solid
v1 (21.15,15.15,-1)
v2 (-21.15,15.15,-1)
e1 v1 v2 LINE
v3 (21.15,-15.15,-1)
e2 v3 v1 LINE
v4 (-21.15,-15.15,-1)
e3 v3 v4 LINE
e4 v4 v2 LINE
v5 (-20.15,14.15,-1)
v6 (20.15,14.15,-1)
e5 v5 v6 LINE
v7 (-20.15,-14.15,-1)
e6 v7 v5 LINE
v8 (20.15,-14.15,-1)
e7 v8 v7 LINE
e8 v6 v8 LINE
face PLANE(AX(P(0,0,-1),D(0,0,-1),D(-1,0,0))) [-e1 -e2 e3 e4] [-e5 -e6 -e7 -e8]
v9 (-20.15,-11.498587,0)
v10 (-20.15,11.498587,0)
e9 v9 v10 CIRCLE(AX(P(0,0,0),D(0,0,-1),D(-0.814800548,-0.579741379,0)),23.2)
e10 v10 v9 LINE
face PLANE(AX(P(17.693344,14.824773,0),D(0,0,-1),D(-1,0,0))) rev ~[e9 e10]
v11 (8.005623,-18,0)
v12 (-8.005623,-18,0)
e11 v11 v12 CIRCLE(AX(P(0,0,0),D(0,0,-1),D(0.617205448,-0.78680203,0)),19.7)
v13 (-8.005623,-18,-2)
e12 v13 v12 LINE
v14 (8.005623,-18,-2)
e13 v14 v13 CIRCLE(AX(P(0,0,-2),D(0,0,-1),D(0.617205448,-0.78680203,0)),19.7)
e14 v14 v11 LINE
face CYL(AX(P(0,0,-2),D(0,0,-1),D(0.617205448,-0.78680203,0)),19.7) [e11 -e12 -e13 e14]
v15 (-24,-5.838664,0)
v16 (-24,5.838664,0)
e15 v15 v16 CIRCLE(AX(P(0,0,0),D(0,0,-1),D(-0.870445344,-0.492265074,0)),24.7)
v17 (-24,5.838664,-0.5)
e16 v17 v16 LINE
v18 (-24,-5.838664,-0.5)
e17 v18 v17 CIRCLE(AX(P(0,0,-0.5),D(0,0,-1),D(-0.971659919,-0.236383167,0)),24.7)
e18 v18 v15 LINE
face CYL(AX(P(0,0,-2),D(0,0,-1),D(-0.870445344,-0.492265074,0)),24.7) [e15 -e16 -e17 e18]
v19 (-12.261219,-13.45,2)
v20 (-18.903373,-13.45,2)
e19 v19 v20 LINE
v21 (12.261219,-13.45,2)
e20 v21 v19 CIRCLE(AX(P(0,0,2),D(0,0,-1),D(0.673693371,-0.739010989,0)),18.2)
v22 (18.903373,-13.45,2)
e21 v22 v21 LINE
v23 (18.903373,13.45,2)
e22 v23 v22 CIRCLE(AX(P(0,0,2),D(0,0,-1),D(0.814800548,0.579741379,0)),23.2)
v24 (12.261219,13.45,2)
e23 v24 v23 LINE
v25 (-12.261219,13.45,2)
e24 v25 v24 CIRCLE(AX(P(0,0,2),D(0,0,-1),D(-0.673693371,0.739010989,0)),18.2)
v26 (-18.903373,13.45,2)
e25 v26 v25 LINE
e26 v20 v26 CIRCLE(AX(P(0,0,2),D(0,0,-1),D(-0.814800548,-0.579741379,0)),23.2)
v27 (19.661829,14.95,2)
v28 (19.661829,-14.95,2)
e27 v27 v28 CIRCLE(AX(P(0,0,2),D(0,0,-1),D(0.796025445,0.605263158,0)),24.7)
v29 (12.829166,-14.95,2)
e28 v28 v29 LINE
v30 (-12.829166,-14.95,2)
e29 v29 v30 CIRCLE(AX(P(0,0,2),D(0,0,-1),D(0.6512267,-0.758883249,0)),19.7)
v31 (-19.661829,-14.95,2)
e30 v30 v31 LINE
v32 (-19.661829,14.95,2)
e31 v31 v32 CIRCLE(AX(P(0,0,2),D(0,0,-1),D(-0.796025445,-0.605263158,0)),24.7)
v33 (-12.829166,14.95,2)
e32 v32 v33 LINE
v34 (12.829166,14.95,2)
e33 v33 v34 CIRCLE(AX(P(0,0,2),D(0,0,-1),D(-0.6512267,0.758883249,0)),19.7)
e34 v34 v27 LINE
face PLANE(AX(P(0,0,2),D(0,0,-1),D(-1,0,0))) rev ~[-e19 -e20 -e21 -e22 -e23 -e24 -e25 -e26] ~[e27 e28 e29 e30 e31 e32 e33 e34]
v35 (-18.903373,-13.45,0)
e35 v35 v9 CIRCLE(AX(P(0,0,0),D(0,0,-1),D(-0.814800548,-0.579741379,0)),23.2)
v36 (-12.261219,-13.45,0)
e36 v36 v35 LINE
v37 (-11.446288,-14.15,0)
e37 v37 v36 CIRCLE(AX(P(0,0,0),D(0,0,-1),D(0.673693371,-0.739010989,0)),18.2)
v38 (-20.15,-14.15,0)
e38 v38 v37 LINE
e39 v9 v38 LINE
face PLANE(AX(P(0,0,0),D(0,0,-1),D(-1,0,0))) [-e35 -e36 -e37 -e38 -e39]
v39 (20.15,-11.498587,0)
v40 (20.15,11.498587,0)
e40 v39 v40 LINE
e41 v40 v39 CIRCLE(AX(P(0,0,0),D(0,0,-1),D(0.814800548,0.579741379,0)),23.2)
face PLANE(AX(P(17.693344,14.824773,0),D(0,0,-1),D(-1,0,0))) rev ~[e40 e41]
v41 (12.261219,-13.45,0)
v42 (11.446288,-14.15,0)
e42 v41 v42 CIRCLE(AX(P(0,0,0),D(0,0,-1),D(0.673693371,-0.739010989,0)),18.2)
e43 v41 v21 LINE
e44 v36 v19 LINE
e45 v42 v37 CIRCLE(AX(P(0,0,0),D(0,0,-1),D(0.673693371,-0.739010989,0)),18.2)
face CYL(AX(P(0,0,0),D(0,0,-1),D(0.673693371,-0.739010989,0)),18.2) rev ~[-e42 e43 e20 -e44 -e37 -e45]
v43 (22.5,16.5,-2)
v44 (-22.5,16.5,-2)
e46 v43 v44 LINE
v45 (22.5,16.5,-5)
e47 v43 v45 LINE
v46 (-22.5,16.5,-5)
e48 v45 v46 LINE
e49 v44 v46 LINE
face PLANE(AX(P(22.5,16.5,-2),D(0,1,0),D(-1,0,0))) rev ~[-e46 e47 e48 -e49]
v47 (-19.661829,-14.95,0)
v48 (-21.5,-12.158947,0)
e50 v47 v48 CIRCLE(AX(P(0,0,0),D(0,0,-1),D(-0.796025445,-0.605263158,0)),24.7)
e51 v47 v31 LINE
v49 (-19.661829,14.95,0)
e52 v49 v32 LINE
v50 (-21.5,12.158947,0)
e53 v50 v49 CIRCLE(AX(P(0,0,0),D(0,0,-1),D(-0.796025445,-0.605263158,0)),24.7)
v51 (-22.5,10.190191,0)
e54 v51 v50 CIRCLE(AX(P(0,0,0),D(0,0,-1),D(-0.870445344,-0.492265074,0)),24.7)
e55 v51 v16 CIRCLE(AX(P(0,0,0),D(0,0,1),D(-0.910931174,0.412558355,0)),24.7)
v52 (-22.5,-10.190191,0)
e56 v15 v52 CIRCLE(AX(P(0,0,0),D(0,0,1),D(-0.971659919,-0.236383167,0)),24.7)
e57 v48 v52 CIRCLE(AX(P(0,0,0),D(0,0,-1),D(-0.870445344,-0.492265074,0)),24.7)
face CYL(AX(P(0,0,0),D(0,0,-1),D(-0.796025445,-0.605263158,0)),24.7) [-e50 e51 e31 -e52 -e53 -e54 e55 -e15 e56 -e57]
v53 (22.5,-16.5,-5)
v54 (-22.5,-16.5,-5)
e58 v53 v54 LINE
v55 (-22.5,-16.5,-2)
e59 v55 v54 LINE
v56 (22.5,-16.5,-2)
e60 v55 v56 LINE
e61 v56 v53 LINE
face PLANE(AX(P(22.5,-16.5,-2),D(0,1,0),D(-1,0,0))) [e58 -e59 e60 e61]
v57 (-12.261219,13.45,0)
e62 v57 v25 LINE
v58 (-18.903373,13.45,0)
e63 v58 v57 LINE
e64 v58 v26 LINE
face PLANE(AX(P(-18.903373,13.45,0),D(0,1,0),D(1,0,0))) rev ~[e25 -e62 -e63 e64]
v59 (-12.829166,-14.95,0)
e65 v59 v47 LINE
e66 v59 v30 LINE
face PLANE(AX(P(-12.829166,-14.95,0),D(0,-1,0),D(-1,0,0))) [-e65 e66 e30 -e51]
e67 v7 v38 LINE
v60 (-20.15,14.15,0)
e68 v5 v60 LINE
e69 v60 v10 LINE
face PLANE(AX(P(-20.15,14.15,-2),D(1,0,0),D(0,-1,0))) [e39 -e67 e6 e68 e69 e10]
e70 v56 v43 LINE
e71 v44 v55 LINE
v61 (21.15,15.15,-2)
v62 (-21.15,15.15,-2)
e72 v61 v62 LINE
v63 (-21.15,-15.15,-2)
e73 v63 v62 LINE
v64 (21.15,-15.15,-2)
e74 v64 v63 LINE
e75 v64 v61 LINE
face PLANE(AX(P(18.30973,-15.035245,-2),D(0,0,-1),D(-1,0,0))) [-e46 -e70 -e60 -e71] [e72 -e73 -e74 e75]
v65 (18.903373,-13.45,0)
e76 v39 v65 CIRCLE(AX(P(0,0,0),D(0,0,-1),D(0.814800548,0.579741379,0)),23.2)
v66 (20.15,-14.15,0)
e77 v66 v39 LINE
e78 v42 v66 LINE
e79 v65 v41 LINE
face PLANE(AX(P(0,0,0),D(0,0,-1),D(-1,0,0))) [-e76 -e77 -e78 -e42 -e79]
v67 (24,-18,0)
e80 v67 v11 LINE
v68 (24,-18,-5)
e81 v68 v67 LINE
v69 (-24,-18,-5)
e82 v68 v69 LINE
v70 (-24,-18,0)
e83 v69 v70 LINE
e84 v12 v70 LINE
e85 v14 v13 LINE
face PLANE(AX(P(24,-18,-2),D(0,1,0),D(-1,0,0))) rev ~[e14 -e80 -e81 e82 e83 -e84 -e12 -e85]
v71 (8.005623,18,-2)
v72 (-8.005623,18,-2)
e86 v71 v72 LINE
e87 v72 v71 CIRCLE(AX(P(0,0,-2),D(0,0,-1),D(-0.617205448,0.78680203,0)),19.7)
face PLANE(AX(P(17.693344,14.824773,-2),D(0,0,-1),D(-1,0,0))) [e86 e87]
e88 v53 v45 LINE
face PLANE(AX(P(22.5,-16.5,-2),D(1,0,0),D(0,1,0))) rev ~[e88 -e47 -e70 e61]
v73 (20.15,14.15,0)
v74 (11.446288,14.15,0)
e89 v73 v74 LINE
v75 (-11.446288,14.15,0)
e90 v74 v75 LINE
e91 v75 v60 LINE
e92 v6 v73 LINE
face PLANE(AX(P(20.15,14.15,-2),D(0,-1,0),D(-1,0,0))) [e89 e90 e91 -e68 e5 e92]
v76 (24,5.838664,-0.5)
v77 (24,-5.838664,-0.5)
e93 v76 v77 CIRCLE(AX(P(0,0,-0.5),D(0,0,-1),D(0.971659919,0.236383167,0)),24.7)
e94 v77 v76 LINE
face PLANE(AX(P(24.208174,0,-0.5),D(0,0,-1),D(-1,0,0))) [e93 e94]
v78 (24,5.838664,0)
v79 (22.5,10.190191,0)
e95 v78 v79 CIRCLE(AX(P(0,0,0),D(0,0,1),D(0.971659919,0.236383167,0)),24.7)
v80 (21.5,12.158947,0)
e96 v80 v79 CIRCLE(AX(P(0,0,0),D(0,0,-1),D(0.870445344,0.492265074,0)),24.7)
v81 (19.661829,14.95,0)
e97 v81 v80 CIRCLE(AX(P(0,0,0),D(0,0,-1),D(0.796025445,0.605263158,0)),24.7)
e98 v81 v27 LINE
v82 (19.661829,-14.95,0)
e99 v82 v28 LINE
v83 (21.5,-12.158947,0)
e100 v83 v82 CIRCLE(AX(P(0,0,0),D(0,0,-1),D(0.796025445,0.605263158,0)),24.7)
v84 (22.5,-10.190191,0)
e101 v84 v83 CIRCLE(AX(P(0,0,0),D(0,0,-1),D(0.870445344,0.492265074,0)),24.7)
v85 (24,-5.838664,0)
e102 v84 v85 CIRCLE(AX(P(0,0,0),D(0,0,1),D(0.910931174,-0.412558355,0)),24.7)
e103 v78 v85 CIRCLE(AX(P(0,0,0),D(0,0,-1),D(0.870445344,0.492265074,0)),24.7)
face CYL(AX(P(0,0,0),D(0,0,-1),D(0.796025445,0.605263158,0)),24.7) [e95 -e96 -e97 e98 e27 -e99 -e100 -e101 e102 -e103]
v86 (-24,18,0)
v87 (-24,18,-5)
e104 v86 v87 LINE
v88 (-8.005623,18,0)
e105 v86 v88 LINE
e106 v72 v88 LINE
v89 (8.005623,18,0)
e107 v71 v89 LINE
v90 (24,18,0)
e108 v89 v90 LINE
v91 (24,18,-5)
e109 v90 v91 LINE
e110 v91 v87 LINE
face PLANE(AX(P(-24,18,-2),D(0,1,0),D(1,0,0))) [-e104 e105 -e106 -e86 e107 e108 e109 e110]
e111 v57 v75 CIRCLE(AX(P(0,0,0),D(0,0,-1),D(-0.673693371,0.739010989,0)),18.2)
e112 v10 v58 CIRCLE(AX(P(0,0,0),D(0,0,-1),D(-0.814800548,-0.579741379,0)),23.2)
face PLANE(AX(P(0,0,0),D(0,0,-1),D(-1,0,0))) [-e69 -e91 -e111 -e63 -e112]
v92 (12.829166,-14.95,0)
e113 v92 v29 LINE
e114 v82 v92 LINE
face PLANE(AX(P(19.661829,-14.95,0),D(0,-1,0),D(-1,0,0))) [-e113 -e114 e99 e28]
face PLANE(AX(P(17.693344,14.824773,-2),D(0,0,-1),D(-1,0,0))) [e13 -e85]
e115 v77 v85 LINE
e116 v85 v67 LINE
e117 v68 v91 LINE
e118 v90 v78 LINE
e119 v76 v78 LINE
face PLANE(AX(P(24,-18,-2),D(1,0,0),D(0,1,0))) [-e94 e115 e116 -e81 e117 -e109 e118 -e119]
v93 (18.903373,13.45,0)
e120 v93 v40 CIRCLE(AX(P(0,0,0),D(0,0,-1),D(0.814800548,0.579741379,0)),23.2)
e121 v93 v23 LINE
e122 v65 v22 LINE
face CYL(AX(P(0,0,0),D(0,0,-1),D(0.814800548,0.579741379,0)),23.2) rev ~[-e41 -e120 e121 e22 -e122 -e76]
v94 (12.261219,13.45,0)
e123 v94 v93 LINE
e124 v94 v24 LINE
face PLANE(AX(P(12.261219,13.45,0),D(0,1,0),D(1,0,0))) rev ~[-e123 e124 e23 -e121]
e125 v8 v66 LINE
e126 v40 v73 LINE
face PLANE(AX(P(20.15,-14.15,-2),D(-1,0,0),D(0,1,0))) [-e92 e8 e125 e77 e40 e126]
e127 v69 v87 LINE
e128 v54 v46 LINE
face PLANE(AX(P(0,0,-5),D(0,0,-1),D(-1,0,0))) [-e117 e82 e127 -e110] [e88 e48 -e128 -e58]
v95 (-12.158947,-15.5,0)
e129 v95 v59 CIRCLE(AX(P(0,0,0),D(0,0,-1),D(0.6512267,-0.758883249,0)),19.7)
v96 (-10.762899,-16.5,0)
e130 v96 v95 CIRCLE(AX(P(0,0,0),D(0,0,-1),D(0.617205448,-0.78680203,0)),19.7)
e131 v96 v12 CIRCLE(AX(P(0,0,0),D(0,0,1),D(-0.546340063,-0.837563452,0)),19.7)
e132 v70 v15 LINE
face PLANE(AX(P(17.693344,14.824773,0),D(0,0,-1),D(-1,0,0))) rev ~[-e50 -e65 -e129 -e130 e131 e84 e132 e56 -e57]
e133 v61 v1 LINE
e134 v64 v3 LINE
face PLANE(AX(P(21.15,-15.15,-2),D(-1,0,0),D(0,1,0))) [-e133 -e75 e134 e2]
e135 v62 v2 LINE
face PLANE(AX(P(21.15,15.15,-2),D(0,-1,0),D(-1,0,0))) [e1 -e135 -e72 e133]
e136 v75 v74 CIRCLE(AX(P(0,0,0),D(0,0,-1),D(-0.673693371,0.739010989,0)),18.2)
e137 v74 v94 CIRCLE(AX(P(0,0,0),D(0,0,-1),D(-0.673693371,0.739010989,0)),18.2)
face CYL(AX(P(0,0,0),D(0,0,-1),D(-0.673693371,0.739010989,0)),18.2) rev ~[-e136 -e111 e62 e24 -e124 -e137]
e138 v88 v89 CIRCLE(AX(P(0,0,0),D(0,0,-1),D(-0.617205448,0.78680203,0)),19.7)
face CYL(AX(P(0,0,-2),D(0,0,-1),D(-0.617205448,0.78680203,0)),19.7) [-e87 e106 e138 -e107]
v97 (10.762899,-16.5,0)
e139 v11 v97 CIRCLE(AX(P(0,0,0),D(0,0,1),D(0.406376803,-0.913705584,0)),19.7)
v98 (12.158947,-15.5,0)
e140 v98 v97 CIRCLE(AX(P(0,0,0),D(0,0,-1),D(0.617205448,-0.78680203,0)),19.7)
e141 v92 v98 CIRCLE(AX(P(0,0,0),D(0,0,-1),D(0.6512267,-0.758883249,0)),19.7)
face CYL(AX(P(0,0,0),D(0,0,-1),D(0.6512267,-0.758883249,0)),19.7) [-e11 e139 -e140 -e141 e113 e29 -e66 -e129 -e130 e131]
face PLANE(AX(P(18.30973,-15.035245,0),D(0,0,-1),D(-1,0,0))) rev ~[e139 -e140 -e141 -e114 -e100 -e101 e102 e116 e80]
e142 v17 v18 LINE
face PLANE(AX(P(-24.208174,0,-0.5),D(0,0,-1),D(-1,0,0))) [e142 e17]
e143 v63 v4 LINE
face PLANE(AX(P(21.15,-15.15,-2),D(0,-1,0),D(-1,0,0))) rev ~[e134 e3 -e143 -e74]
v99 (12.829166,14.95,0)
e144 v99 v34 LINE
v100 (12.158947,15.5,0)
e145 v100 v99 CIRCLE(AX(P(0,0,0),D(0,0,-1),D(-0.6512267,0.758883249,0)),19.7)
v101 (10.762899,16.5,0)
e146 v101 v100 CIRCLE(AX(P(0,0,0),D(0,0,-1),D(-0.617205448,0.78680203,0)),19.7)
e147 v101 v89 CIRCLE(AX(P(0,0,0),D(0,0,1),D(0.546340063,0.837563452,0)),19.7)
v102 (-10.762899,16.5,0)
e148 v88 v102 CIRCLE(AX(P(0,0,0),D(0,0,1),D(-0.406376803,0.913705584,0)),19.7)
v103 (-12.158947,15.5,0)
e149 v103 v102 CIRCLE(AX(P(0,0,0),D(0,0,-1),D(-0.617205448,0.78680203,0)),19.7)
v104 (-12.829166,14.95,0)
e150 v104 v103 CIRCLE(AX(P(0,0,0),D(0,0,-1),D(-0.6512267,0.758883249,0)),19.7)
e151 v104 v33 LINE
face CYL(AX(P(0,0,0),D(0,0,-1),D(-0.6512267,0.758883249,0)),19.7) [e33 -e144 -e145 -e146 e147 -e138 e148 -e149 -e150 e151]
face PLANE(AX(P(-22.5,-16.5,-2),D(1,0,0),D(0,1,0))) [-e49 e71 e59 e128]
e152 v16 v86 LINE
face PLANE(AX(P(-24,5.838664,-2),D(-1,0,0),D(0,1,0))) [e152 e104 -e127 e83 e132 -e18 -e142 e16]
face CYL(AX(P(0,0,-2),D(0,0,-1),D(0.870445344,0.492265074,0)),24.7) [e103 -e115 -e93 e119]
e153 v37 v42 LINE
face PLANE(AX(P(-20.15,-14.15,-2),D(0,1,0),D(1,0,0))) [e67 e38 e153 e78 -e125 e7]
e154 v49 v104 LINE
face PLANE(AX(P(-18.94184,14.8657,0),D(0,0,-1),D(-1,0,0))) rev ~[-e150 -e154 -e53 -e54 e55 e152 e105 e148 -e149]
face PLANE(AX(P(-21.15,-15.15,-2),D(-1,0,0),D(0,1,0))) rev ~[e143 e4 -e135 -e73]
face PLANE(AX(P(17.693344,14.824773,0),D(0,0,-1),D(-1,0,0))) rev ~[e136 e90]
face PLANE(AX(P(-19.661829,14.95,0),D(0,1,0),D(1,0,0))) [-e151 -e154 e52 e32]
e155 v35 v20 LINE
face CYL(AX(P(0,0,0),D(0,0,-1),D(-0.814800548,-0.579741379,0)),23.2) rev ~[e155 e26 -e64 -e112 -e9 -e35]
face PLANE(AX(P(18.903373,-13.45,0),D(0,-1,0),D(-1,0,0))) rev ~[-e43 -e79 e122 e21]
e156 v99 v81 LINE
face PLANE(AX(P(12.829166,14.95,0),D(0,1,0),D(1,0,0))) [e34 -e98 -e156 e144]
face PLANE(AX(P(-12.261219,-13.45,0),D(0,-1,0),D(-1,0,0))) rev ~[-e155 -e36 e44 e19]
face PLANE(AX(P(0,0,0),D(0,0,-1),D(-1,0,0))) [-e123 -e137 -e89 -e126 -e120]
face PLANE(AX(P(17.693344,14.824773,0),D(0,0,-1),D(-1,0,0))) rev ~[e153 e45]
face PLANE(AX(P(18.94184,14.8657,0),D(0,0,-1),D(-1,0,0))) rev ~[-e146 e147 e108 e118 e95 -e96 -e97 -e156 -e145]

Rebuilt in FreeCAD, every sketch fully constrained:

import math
import FreeCAD as App
import Part
import Sketcher
from FreeCAD import Vector
Q = App.Units.Quantity

doc = App.newDocument("Part")
body = doc.addObject("PartDesign::Body", "Body")

sketch1 = body.newObject("Sketcher::SketchObject", "Sketch")
sketch1.AttachmentSupport = (doc.getObject("XY_Plane"), [""])
sketch1.MapMode = "FlatFace"
sketch1.addGeometry([
    Part.LineSegment(Vector(-13, 15, 0), Vector(-20, 15, 0)),
    Part.ArcOfCircle(Part.Circle(Vector(0, 0, 0), Vector(0, 0, 1), 25), math.radians(143), math.radians(217)),
    Part.LineSegment(Vector(-20, -15, 0), Vector(-13, -15, 0)),
    Part.ArcOfCircle(Part.Circle(Vector(0, 0, 0), Vector(0, 0, 1), 20), math.radians(-131), math.radians(-49)),
    Part.LineSegment(Vector(13, -15, 0), Vector(20, -15, 0)),
    Part.ArcOfCircle(Part.Circle(Vector(0, 0, 0), Vector(0, 0, 1), 25), math.radians(-37), math.radians(37)),
    Part.LineSegment(Vector(20, 15, 0), Vector(13, 15, 0)),
    Part.ArcOfCircle(Part.Circle(Vector(0, 0, 0), Vector(0, 0, 1), 20), math.radians(49), math.radians(131)),
    Part.LineSegment(Vector(-19, 13, 0), Vector(-12, 13, 0)),
    Part.ArcOfCircle(Part.Circle(Vector(0, 0, 0), Vector(0, 0, 1), 18), math.radians(48), math.radians(132)),
    Part.LineSegment(Vector(12, 13, 0), Vector(19, 13, 0)),
    Part.ArcOfCircle(Part.Circle(Vector(0, 0, 0), Vector(0, 0, 1), 23), math.radians(-35), math.radians(35)),
    Part.LineSegment(Vector(19, -13, 0), Vector(12, -13, 0)),
    Part.ArcOfCircle(Part.Circle(Vector(0, 0, 0), Vector(0, 0, 1), 18), math.radians(-132), math.radians(-48)),
    Part.LineSegment(Vector(-12, -13, 0), Vector(-19, -13, 0)),
    Part.ArcOfCircle(Part.Circle(Vector(0, 0, 0), Vector(0, 0, 1), 23), math.radians(145), math.radians(215)),
], False)
sketch1.addConstraint([
    Sketcher.Constraint("Coincident", 0, 2, 1, 1),
    Sketcher.Constraint("Coincident", 1, 2, 2, 1),
    Sketcher.Constraint("Coincident", 2, 2, 3, 1),
    Sketcher.Constraint("Coincident", 3, 2, 4, 1),
    Sketcher.Constraint("Coincident", 4, 2, 5, 1),
    Sketcher.Constraint("Coincident", 5, 2, 6, 1),
    Sketcher.Constraint("Coincident", 6, 2, 7, 1),
    Sketcher.Constraint("Coincident", 7, 2, 0, 1),
    Sketcher.Constraint("Coincident", 8, 2, 9, 2),
    Sketcher.Constraint("Coincident", 9, 1, 10, 1),
    Sketcher.Constraint("Coincident", 10, 2, 11, 2),
    Sketcher.Constraint("Coincident", 11, 1, 12, 1),
    Sketcher.Constraint("Coincident", 12, 2, 13, 2),
    Sketcher.Constraint("Coincident", 13, 1, 14, 1),
    Sketcher.Constraint("Coincident", 14, 2, 15, 2),
    Sketcher.Constraint("Coincident", 15, 1, 8, 1),
    Sketcher.Constraint("Horizontal", 0),
    Sketcher.Constraint("Horizontal", 2),
    Sketcher.Constraint("Horizontal", 4),
    Sketcher.Constraint("Horizontal", 6),
    Sketcher.Constraint("Horizontal", 8),
    Sketcher.Constraint("Horizontal", 10),
    Sketcher.Constraint("Horizontal", 12),
    Sketcher.Constraint("Horizontal", 14),
    Sketcher.Constraint("Coincident", 1, 3, -1, 1),
    Sketcher.Constraint("Coincident", 3, 3, -1, 1),
    Sketcher.Constraint("Coincident", 5, 3, -1, 1),
    Sketcher.Constraint("Coincident", 7, 3, -1, 1),
    Sketcher.Constraint("Coincident", 9, 3, -1, 1),
    Sketcher.Constraint("Coincident", 11, 3, -1, 1),
    Sketcher.Constraint("Coincident", 13, 3, -1, 1),
    Sketcher.Constraint("Coincident", 15, 3, -1, 1),
    Sketcher.Constraint("Equal", 1, 5),
    Sketcher.Constraint("Equal", 3, 7),
    Sketcher.Constraint("Equal", 9, 13),
    Sketcher.Constraint("Equal", 11, 15),
    Sketcher.Constraint("Horizontal", 2, 2, 3, 2),
    Sketcher.Constraint("Horizontal", 0, 2, 5, 2),
    Sketcher.Constraint("Horizontal", 8, 2, 9, 1),
    Sketcher.Constraint("Horizontal", 12, 2, 13, 1),
    Sketcher.Constraint("Vertical", 0, 2, 1, 2),
    Sketcher.Constraint("Vertical", 10, 2, 11, 1),
    Sketcher.Constraint("Radius", 1, Q("24.7 mm")),
    Sketcher.Constraint("Radius", 3, Q("19.7 mm")),
    Sketcher.Constraint("Radius", 9, Q("18.2 mm")),
    Sketcher.Constraint("Radius", 11, Q("23.2 mm")),
    Sketcher.Constraint("DistanceY", 8, 2, 7, 2, Q("1.5 mm")),
    Sketcher.Constraint("DistanceY", -1, 1, 0, 2, Q("14.95 mm")),
])
pad1 = body.newObject("PartDesign::Pad", "Pad")
pad1.Profile = sketch1
pad1.Length = 2

sketch2 = body.newObject("Sketcher::SketchObject", "Sketch001")
sketch2.AttachmentSupport = (doc.getObject("XY_Plane"), [""])
sketch2.MapMode = "FlatFace"
sketch2.AttachmentOffset = App.Placement(Vector(0, 0, -2), App.Rotation())
sketch2.addGeometry([
    Part.ArcOfCircle(Part.Circle(Vector(0, 0, 0), Vector(0, 0, 1), 19.7), math.radians(-128), math.radians(-52)),
    Part.LineSegment(Vector(-12.2, -15.5, 0), Vector(-21.5, -15.5, 0)),
    Part.LineSegment(Vector(-21.5, -15.5, 0), Vector(-21.5, -12.2, 0)),
    Part.ArcOfCircle(Part.Circle(Vector(0, 0, 0), Vector(0, 0, 1), 24.7), math.radians(151), math.radians(209)),
    Part.LineSegment(Vector(-21.5, 12.2, 0), Vector(-21.5, 15.5, 0)),
    Part.LineSegment(Vector(-21.5, 15.5, 0), Vector(-12.2, 15.5, 0)),
    Part.ArcOfCircle(Part.Circle(Vector(0, 0, 0), Vector(0, 0, 1), 19.7), math.radians(52), math.radians(128)),
    Part.LineSegment(Vector(12.2, 15.5, 0), Vector(21.5, 15.5, 0)),
    Part.LineSegment(Vector(21.5, 15.5, 0), Vector(21.5, 12.2, 0)),
    Part.ArcOfCircle(Part.Circle(Vector(0, 0, 0), Vector(0, 0, 1), 24.7), math.radians(-29), math.radians(29)),
    Part.LineSegment(Vector(21.5, -12.2, 0), Vector(21.5, -15.5, 0)),
    Part.LineSegment(Vector(21.5, -15.5, 0), Vector(12.2, -15.5, 0)),
    Part.LineSegment(Vector(20.1, 14.2, 0), Vector(-20.1, 14.2, 0)),
    Part.LineSegment(Vector(-20.1, 14.2, 0), Vector(-20.1, -14.2, 0)),
    Part.LineSegment(Vector(-20.1, -14.2, 0), Vector(20.1, -14.2, 0)),
    Part.LineSegment(Vector(20.1, -14.2, 0), Vector(20.1, 14.2, 0)),
], False)
sketch2.addConstraint([
    Sketcher.Constraint("Coincident", 0, 1, 1, 1),
    Sketcher.Constraint("Coincident", 1, 2, 2, 1),
    Sketcher.Constraint("Coincident", 2, 2, 3, 2),
    Sketcher.Constraint("Coincident", 3, 1, 4, 1),
    Sketcher.Constraint("Coincident", 4, 2, 5, 1),
    Sketcher.Constraint("Coincident", 5, 2, 6, 2),
    Sketcher.Constraint("Coincident", 6, 1, 7, 1),
    Sketcher.Constraint("Coincident", 7, 2, 8, 1),
    Sketcher.Constraint("Coincident", 8, 2, 9, 2),
    Sketcher.Constraint("Coincident", 9, 1, 10, 1),
    Sketcher.Constraint("Coincident", 10, 2, 11, 1),
    Sketcher.Constraint("Coincident", 11, 2, 0, 2),
    Sketcher.Constraint("Coincident", 12, 2, 13, 1),
    Sketcher.Constraint("Coincident", 13, 2, 14, 1),
    Sketcher.Constraint("Coincident", 14, 2, 15, 1),
    Sketcher.Constraint("Coincident", 15, 2, 12, 1),
    Sketcher.Constraint("Horizontal", 1),
    Sketcher.Constraint("Vertical", 2),
    Sketcher.Constraint("Vertical", 4),
    Sketcher.Constraint("Horizontal", 5),
    Sketcher.Constraint("Horizontal", 7),
    Sketcher.Constraint("Vertical", 8),
    Sketcher.Constraint("Vertical", 10),
    Sketcher.Constraint("Horizontal", 11),
    Sketcher.Constraint("Horizontal", 12),
    Sketcher.Constraint("Vertical", 13),
    Sketcher.Constraint("Horizontal", 14),
    Sketcher.Constraint("Vertical", 15),
    Sketcher.Constraint("Coincident", 0, 3, -1, 1),
    Sketcher.Constraint("Coincident", 3, 3, -1, 1),
    Sketcher.Constraint("Coincident", 6, 3, -1, 1),
    Sketcher.Constraint("Coincident", 9, 3, -1, 1),
    Sketcher.Constraint("Equal", 0, 6),
    Sketcher.Constraint("Equal", 3, 9),
    Sketcher.Constraint("Symmetric", 1, 2, 7, 2, -1, 1),
    Sketcher.Constraint("Symmetric", 4, 2, 10, 2, -1, 1),
    Sketcher.Constraint("Symmetric", 12, 2, 14, 2, -1, 1),
    Sketcher.Constraint("Symmetric", 4, 2, 7, 2, -2),
    Sketcher.Constraint("Radius", 0, Q("19.7 mm")),
    Sketcher.Constraint("Radius", 3, Q("24.7 mm")),
    Sketcher.Constraint("DistanceX", 12, 2, 12, 1, Q("40.3 mm")),
    Sketcher.Constraint("DistanceY", 13, 2, 13, 1, Q("28.3 mm")),
    Sketcher.Constraint("DistanceY", 0, 1, -1, 1, Q("15.5 mm")),
    Sketcher.Constraint("DistanceX", 1, 2, -1, 1, Q("21.5 mm")),
])
pad2 = body.newObject("PartDesign::Pad", "Pad001")
pad2.Profile = sketch2
pad2.Length = 2

sketch3 = body.newObject("Sketcher::SketchObject", "Sketch002")
sketch3.AttachmentSupport = (doc.getObject("XY_Plane"), [""])
sketch3.MapMode = "FlatFace"
sketch3.AttachmentOffset = App.Placement(Vector(0, 0, -2), App.Rotation())
sketch3.addGeometry([
    Part.LineSegment(Vector(24, 18, 0), Vector(24, -18, 0)),
    Part.LineSegment(Vector(24, -18, 0), Vector(-24, -18, 0)),
    Part.LineSegment(Vector(-24, -18, 0), Vector(-24, 18, 0)),
    Part.LineSegment(Vector(-24, 18, 0), Vector(24, 18, 0)),
    Part.LineSegment(Vector(-22, -16, 0), Vector(22, -16, 0)),
    Part.LineSegment(Vector(22, -16, 0), Vector(22, 16, 0)),
    Part.LineSegment(Vector(22, 16, 0), Vector(-22, 16, 0)),
    Part.LineSegment(Vector(-22, 16, 0), Vector(-22, -16, 0)),
], False)
sketch3.addConstraint([
    Sketcher.Constraint("Coincident", 0, 2, 1, 1),
    Sketcher.Constraint("Coincident", 1, 2, 2, 1),
    Sketcher.Constraint("Coincident", 2, 2, 3, 1),
    Sketcher.Constraint("Coincident", 3, 2, 0, 1),
    Sketcher.Constraint("Coincident", 4, 2, 5, 1),
    Sketcher.Constraint("Coincident", 5, 2, 6, 1),
    Sketcher.Constraint("Coincident", 6, 2, 7, 1),
    Sketcher.Constraint("Coincident", 7, 2, 4, 1),
    Sketcher.Constraint("Vertical", 0),
    Sketcher.Constraint("Horizontal", 1),
    Sketcher.Constraint("Vertical", 2),
    Sketcher.Constraint("Horizontal", 3),
    Sketcher.Constraint("Horizontal", 4),
    Sketcher.Constraint("Vertical", 5),
    Sketcher.Constraint("Horizontal", 6),
    Sketcher.Constraint("Vertical", 7),
    Sketcher.Constraint("Symmetric", 0, 2, 2, 2, -1, 1),
    Sketcher.Constraint("Symmetric", 4, 2, 6, 2, -1, 1),
    Sketcher.Constraint("DistanceX", 1, 2, 1, 1, Q("48 mm")),
    Sketcher.Constraint("DistanceX", 4, 1, 4, 2, Q("45 mm")),
    Sketcher.Constraint("DistanceY", 0, 2, 0, 1, Q("36 mm")),
    Sketcher.Constraint("DistanceY", 5, 1, 5, 2, Q("33 mm")),
])
pad3 = body.newObject("PartDesign::Pad", "Pad002")
pad3.Profile = sketch3
pad3.Length = 3
pad3.Reversed = True

sketch4 = body.newObject("Sketcher::SketchObject", "Sketch003")
sketch4.AttachmentSupport = (doc.getObject("XY_Plane"), [""])
sketch4.MapMode = "FlatFace"
sketch4.AttachmentOffset = App.Placement(Vector(0, 0, -2), App.Rotation())
sketch4.addGeometry([
    Part.ArcOfCircle(Part.Circle(Vector(0, 0, 0), Vector(0, 0, 1), 24.7), math.radians(155.63), math.radians(166.33)),
    Part.LineSegment(Vector(-24, 5.8, 0), Vector(-24, 18, 0)),
    Part.LineSegment(Vector(-24, 18, 0), Vector(-8, 18, 0)),
    Part.ArcOfCircle(Part.Circle(Vector(0, 0, 0), Vector(0, 0, 1), 19.7), math.radians(113.98), math.radians(123.12)),
    Part.ArcOfCircle(Part.Circle(Vector(0, 0, 0), Vector(0, 0, 1), 19.7), math.radians(123.12), math.radians(128.11)),
    Part.LineSegment(Vector(-12.2, 15.5, 0), Vector(-21.5, 15.5, 0)),
    Part.LineSegment(Vector(-21.5, 15.5, 0), Vector(-21.5, 12.2, 0)),
    Part.ArcOfCircle(Part.Circle(Vector(0, 0, 0), Vector(0, 0, 1), 24.7), math.radians(150.51), math.radians(155.63)),
    Part.ArcOfCircle(Part.Circle(Vector(0, 0, 0), Vector(0, 0, 1), 24.7), math.radians(13.67), math.radians(24.37)),
    Part.ArcOfCircle(Part.Circle(Vector(0, 0, 0), Vector(0, 0, 1), 24.7), math.radians(24.37), math.radians(29.49)),
    Part.LineSegment(Vector(21.5, 12.2, 0), Vector(21.5, 15.5, 0)),
    Part.LineSegment(Vector(21.5, 15.5, 0), Vector(12.2, 15.5, 0)),
    Part.ArcOfCircle(Part.Circle(Vector(0, 0, 0), Vector(0, 0, 1), 19.7), math.radians(51.89), math.radians(56.88)),
    Part.ArcOfCircle(Part.Circle(Vector(0, 0, 0), Vector(0, 0, 1), 19.7), math.radians(56.88), math.radians(66.02)),
    Part.LineSegment(Vector(8, 18, 0), Vector(24, 18, 0)),
    Part.LineSegment(Vector(24, 18, 0), Vector(24, 5.8, 0)),
    Part.ArcOfCircle(Part.Circle(Vector(0, 0, 0), Vector(0, 0, 1), 19.7), math.radians(-56.88), math.radians(-51.89)),
    Part.LineSegment(Vector(12.2, -15.5, 0), Vector(21.5, -15.5, 0)),
    Part.LineSegment(Vector(21.5, -15.5, 0), Vector(21.5, -12.2, 0)),
    Part.ArcOfCircle(Part.Circle(Vector(0, 0, 0), Vector(0, 0, 1), 24.7), math.radians(-29.49), math.radians(-24.37)),
    Part.ArcOfCircle(Part.Circle(Vector(0, 0, 0), Vector(0, 0, 1), 24.7), math.radians(-24.37), math.radians(-13.67)),
    Part.LineSegment(Vector(24, -5.8, 0), Vector(24, -18, 0)),
    Part.LineSegment(Vector(24, -18, 0), Vector(8, -18, 0)),
    Part.ArcOfCircle(Part.Circle(Vector(0, 0, 0), Vector(0, 0, 1), 19.7), math.radians(-66.02), math.radians(-56.88)),
    Part.ArcOfCircle(Part.Circle(Vector(0, 0, 0), Vector(0, 0, 1), 19.7), math.radians(-128.11), math.radians(-123.12)),
    Part.ArcOfCircle(Part.Circle(Vector(0, 0, 0), Vector(0, 0, 1), 19.7), math.radians(-123.12), math.radians(-113.98)),
    Part.LineSegment(Vector(-8, -18, 0), Vector(-24, -18, 0)),
    Part.LineSegment(Vector(-24, -18, 0), Vector(-24, -5.8, 0)),
    Part.ArcOfCircle(Part.Circle(Vector(0, 0, 0), Vector(0, 0, 1), 24.7), math.radians(-166.33), math.radians(-155.63)),
    Part.ArcOfCircle(Part.Circle(Vector(0, 0, 0), Vector(0, 0, 1), 24.7), math.radians(-155.63), math.radians(-150.51)),
    Part.LineSegment(Vector(-21.5, -12.2, 0), Vector(-21.5, -15.5, 0)),
    Part.LineSegment(Vector(-21.5, -15.5, 0), Vector(-12.2, -15.5, 0)),
], False)
sketch4.addConstraint([
    Sketcher.Constraint("Coincident", 0, 2, 1, 1),
    Sketcher.Constraint("Coincident", 1, 2, 2, 1),
    Sketcher.Constraint("Coincident", 2, 2, 3, 1),
    Sketcher.Constraint("Tangent", 3, 2, 4, 1),
    Sketcher.Constraint("Coincident", 4, 2, 5, 1),
    Sketcher.Constraint("Coincident", 5, 2, 6, 1),
    Sketcher.Constraint("Coincident", 6, 2, 7, 1),
    Sketcher.Constraint("Tangent", 7, 2, 0, 1),
    Sketcher.Constraint("Tangent", 8, 2, 9, 1),
    Sketcher.Constraint("Coincident", 9, 2, 10, 1),
    Sketcher.Constraint("Coincident", 10, 2, 11, 1),
    Sketcher.Constraint("Coincident", 11, 2, 12, 1),
    Sketcher.Constraint("Tangent", 12, 2, 13, 1),
    Sketcher.Constraint("Coincident", 13, 2, 14, 1),
    Sketcher.Constraint("Coincident", 14, 2, 15, 1),
    Sketcher.Constraint("Coincident", 15, 2, 8, 1),
    Sketcher.Constraint("Coincident", 16, 2, 17, 1),
    Sketcher.Constraint("Coincident", 17, 2, 18, 1),
    Sketcher.Constraint("Coincident", 18, 2, 19, 1),
    Sketcher.Constraint("Tangent", 19, 2, 20, 1),
    Sketcher.Constraint("Coincident", 20, 2, 21, 1),
    Sketcher.Constraint("Coincident", 21, 2, 22, 1),
    Sketcher.Constraint("Coincident", 22, 2, 23, 1),
    Sketcher.Constraint("Tangent", 23, 2, 16, 1),
    Sketcher.Constraint("Tangent", 24, 2, 25, 1),
    Sketcher.Constraint("Coincident", 25, 2, 26, 1),
    Sketcher.Constraint("Coincident", 26, 2, 27, 1),
    Sketcher.Constraint("Coincident", 27, 2, 28, 1),
    Sketcher.Constraint("Tangent", 28, 2, 29, 1),
    Sketcher.Constraint("Coincident", 29, 2, 30, 1),
    Sketcher.Constraint("Coincident", 30, 2, 31, 1),
    Sketcher.Constraint("Coincident", 31, 2, 24, 1),
    Sketcher.Constraint("Vertical", 1),
    Sketcher.Constraint("Horizontal", 2),
    Sketcher.Constraint("Horizontal", 5),
    Sketcher.Constraint("Vertical", 6),
    Sketcher.Constraint("Vertical", 10),
    Sketcher.Constraint("Horizontal", 11),
    Sketcher.Constraint("Horizontal", 14),
    Sketcher.Constraint("Vertical", 15),
    Sketcher.Constraint("Horizontal", 17),
    Sketcher.Constraint("Vertical", 18),
    Sketcher.Constraint("Vertical", 21),
    Sketcher.Constraint("Horizontal", 22),
    Sketcher.Constraint("Horizontal", 26),
    Sketcher.Constraint("Vertical", 27),
    Sketcher.Constraint("Vertical", 30),
    Sketcher.Constraint("Horizontal", 31),
    Sketcher.Constraint("Coincident", 0, 3, -1, 1),
    Sketcher.Constraint("Coincident", 3, 3, -1, 1),
    Sketcher.Constraint("Coincident", 8, 3, -1, 1),
    Sketcher.Constraint("Coincident", 12, 3, -1, 1),
    Sketcher.Constraint("Coincident", 16, 3, -1, 1),
    Sketcher.Constraint("Coincident", 19, 3, -1, 1),
    Sketcher.Constraint("Coincident", 24, 3, -1, 1),
    Sketcher.Constraint("Coincident", 28, 3, -1, 1),
    Sketcher.Constraint("Equal", 3, 4),
    Sketcher.Constraint("Equal", 0, 7),
    Sketcher.Constraint("Equal", 7, 8),
    Sketcher.Constraint("Equal", 8, 9),
    Sketcher.Constraint("Equal", 4, 12),
    Sketcher.Constraint("Equal", 12, 13),
    Sketcher.Constraint("Equal", 13, 16),
    Sketcher.Constraint("Equal", 9, 19),
    Sketcher.Constraint("Equal", 19, 20),
    Sketcher.Constraint("Equal", 16, 23),
    Sketcher.Constraint("Equal", 23, 24),
    Sketcher.Constraint("Equal", 24, 25),
    Sketcher.Constraint("Equal", 20, 28),
    Sketcher.Constraint("Equal", 28, 29),
    Sketcher.Constraint("Symmetric", 5, 2, 17, 2, -1, 1),
    Sketcher.Constraint("Symmetric", 1, 2, 21, 2, -1, 1),
    Sketcher.Constraint("Symmetric", 14, 2, 26, 2, -1, 1),
    Sketcher.Constraint("Symmetric", 10, 2, 30, 2, -1, 1),
    Sketcher.Constraint("Symmetric", 5, 2, 10, 2, -2),
    Sketcher.Constraint("Symmetric", 1, 2, 14, 2, -2),
    Sketcher.Constraint("Horizontal", 7, 2, 8, 2),
    Sketcher.Constraint("Horizontal", 3, 2, 12, 2),
    Sketcher.Constraint("Horizontal", 23, 2, 24, 2),
    Sketcher.Constraint("Horizontal", 19, 2, 28, 2),
    Sketcher.Constraint("Vertical", 8, 2, 19, 2),
    Sketcher.Constraint("Vertical", 12, 2, 23, 2),
    Sketcher.Constraint("Radius", 0, Q("24.7 mm")),
    Sketcher.Constraint("Radius", 3, Q("19.7 mm")),
    Sketcher.Constraint("DistanceX", 0, 2, -1, 1, Q("24 mm")),
    Sketcher.Constraint("DistanceY", -1, 1, 1, 2, Q("18 mm")),
    Sketcher.Constraint("DistanceY", 4, 2, 3, 2, Q("1 mm")),
    Sketcher.Constraint("DistanceX", 7, 2, 6, 2, Q("1 mm")),
    Sketcher.Constraint("DistanceY", -1, 1, 3, 2, Q("16.5 mm")),
    Sketcher.Constraint("DistanceX", 5, 2, -1, 1, Q("21.5 mm")),
])
pad4 = body.newObject("PartDesign::Pad", "Pad003")
pad4.Profile = sketch4
pad4.Length = 2

sketch5 = body.newObject("Sketcher::SketchObject", "Sketch004")
sketch5.AttachmentSupport = (doc.getObject("XY_Plane"), [""])
sketch5.MapMode = "FlatFace"
sketch5.AttachmentOffset = App.Placement(Vector(0, 0, -2), App.Rotation())
sketch5.addGeometry([
    Part.ArcOfCircle(Part.Circle(Vector(0, 0, 0), Vector(0, 0, 1), 25), math.radians(-14), math.radians(14)),
    Part.LineSegment(Vector(24, -6, 0), Vector(24, 6, 0)),
    Part.LineSegment(Vector(-24, 6, 0), Vector(-24, -6, 0)),
    Part.ArcOfCircle(Part.Circle(Vector(0, 0, 0), Vector(0, 0, 1), 25), math.radians(166), math.radians(194)),
], False)
sketch5.addConstraint([
    Sketcher.Constraint("Coincident", 0, 1, 1, 1),
    Sketcher.Constraint("Coincident", 1, 2, 0, 2),
    Sketcher.Constraint("Coincident", 2, 1, 3, 1),
    Sketcher.Constraint("Coincident", 3, 2, 2, 2),
    Sketcher.Constraint("Vertical", 1),
    Sketcher.Constraint("Vertical", 2),
    Sketcher.Constraint("Coincident", 0, 3, -1, 1),
    Sketcher.Constraint("Coincident", 3, 3, -1, 1),
    Sketcher.Constraint("Equal", 0, 3),
    Sketcher.Constraint("Horizontal", 1, 2, 2, 1),
    Sketcher.Constraint("Radius", 0, Q("24.7 mm")),
    Sketcher.Constraint("DistanceX", -1, 1, 0, 1, Q("24 mm")),
])
pocket1 = body.newObject("PartDesign::Pocket", "Pocket")
pocket1.Profile = sketch5
pocket1.Length = 1.5
pocket1.Reversed = True

sketch6 = body.newObject("Sketcher::SketchObject", "Sketch005")
sketch6.AttachmentSupport = (doc.getObject("XY_Plane"), [""])
sketch6.MapMode = "FlatFace"
sketch6.AttachmentOffset = App.Placement(Vector(0, 0, -2), App.Rotation())
sketch6.addGeometry([
    Part.LineSegment(Vector(21, 15, 0), Vector(21, -15, 0)),
    Part.LineSegment(Vector(21, -15, 0), Vector(-21, -15, 0)),
    Part.LineSegment(Vector(-21, -15, 0), Vector(-21, 15, 0)),
    Part.LineSegment(Vector(-21, 15, 0), Vector(21, 15, 0)),
], False)
sketch6.addConstraint([
    Sketcher.Constraint("Coincident", 0, 2, 1, 1),
    Sketcher.Constraint("Coincident", 1, 2, 2, 1),
    Sketcher.Constraint("Coincident", 2, 2, 3, 1),
    Sketcher.Constraint("Coincident", 3, 2, 0, 1),
    Sketcher.Constraint("Vertical", 0),
    Sketcher.Constraint("Horizontal", 1),
    Sketcher.Constraint("Vertical", 2),
    Sketcher.Constraint("Horizontal", 3),
    Sketcher.Constraint("Symmetric", 0, 2, 2, 2, -1, 1),
    Sketcher.Constraint("DistanceX", 1, 2, 1, 1, Q("42.3 mm")),
    Sketcher.Constraint("DistanceY", 0, 2, 0, 1, Q("30.3 mm")),
])
pocket2 = body.newObject("PartDesign::Pocket", "Pocket001")
pocket2.Profile = sketch6
pocket2.Length = 1
pocket2.Reversed = True

doc.recompute()
